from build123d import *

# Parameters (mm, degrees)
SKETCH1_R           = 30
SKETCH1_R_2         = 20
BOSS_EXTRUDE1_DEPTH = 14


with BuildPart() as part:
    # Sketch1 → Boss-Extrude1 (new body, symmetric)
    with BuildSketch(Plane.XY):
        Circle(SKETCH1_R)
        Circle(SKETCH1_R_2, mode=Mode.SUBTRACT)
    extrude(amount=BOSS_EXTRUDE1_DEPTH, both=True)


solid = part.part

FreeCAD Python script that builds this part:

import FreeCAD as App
import Part
import Sketcher

V = App.Vector

doc = App.newDocument("Part")
params = doc.addObject("Spreadsheet::Sheet", "Params")
for row, (alias, value) in enumerate([
    ("sketch1_diameter", "60 mm"),
    ("sketch1_diameter2", "40 mm"),
    ("pad1_length", "28 mm"),
], start=1):
    params.set(f"A{row}", alias)
    params.set(f"B{row}", "=" + value)
    params.setAlias(f"B{row}", alias)

body = doc.addObject("PartDesign::Body", "Body")

# Sketch on XY plane
sketch1 = body.newObject("Sketcher::SketchObject", "Sketch")
sketch1.AttachmentSupport = (doc.getObject("XY_Plane"), [""])
sketch1.MapMode = "FlatFace"
sketch1.addGeometry([
    Part.Circle(V(0, 0, 0), V(0, 0, 1), 30),
    Part.Circle(V(0, 0, 0), V(0, 0, 1), 20),
], False)
sketch1.addConstraint([
    Sketcher.Constraint("Coincident", 0, 3, -1, 1),
    Sketcher.Constraint("Coincident", 1, 3, -1, 1),
    Sketcher.Constraint("Diameter", 0, 60.0),
    Sketcher.Constraint("Diameter", 1, 40.0),
])
sketch1.setExpression("Constraints[2]", "Params.sketch1_diameter")
sketch1.setExpression("Constraints[3]", "Params.sketch1_diameter2")
pad1 = body.newObject("PartDesign::Pad", "Pad")
pad1.Profile = sketch1
pad1.setExpression("Length", "Params.pad1_length")
pad1.Midplane = True

doc.recompute()
